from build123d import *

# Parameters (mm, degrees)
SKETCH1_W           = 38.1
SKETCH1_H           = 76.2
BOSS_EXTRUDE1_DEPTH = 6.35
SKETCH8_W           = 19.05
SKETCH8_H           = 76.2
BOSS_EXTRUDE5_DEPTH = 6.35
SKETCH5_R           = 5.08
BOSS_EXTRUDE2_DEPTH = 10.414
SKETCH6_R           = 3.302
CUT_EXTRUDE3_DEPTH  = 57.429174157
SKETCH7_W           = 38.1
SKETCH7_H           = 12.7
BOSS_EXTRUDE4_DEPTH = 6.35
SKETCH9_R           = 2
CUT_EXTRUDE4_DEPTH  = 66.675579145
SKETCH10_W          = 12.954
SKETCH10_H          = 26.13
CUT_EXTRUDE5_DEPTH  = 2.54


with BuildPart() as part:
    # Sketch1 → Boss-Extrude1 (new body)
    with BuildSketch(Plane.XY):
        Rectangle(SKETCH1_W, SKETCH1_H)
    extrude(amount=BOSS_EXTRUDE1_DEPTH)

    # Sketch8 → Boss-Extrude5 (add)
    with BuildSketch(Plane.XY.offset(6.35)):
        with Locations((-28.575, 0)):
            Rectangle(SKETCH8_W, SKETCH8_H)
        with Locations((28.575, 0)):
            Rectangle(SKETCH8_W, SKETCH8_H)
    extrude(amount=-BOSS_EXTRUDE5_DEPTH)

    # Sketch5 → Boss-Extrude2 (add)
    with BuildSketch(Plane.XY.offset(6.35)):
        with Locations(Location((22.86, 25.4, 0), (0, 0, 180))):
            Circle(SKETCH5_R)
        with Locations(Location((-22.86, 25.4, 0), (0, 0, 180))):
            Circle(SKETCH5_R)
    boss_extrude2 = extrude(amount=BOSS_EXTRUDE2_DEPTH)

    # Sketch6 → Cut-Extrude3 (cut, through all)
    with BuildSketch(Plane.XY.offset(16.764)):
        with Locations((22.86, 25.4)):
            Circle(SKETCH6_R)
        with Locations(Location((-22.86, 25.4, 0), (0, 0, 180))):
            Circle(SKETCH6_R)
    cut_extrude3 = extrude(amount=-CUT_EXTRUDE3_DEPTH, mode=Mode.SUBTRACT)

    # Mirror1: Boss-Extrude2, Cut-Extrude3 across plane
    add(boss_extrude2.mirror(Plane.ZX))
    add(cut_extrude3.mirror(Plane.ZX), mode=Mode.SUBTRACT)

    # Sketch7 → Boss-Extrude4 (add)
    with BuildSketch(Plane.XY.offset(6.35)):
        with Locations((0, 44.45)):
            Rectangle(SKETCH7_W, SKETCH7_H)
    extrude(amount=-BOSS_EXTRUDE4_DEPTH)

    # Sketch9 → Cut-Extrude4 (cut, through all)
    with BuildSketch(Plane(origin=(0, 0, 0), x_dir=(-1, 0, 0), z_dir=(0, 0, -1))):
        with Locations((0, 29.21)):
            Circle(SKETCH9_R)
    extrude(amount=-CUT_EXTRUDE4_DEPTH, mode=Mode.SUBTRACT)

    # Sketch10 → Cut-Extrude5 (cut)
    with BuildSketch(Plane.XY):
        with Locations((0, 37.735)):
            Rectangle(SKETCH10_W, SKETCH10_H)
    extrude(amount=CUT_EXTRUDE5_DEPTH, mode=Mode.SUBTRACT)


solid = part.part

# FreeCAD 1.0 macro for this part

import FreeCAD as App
import Part
import Sketcher
from FreeCAD import Vector
Q = App.Units.Quantity

doc = App.newDocument("Part")
body = doc.addObject("PartDesign::Body", "Body")

sketch1 = body.newObject("Sketcher::SketchObject", "Sketch")
sketch1.AttachmentSupport = (doc.getObject("XY_Plane"), [""])
sketch1.MapMode = "FlatFace"
sketch1.addGeometry([
    Part.LineSegment(Vector(-19.05, 38.1, 0), Vector(-19.05, -38.1, 0)),
    Part.LineSegment(Vector(-19.05, -38.1, 0), Vector(19.05, -38.1, 0)),
    Part.LineSegment(Vector(19.05, -38.1, 0), Vector(19.05, 38.1, 0)),
    Part.LineSegment(Vector(19.05, 38.1, 0), Vector(-19.05, 38.1, 0)),
], False)
sketch1.addConstraint([
    Sketcher.Constraint("Coincident", 0, 2, 1, 1),
    Sketcher.Constraint("Coincident", 1, 2, 2, 1),
    Sketcher.Constraint("Coincident", 2, 2, 3, 1),
    Sketcher.Constraint("Coincident", 3, 2, 0, 1),
    Sketcher.Constraint("Vertical", 0),
    Sketcher.Constraint("Horizontal", 1),
    Sketcher.Constraint("Vertical", 2),
    Sketcher.Constraint("Horizontal", 3),
    Sketcher.Constraint("Symmetric", 0, 2, 2, 2, -1, 1),
    Sketcher.Constraint("DistanceY", 0, 2, 0, 1, Q("3 in")),
    Sketcher.Constraint("DistanceX", 1, 1, 1, 2, Q("1.5 in")),
])
pad1 = body.newObject("PartDesign::Pad", "Pad")
pad1.Profile = sketch1
pad1.Length = Q("0.25 in")

sketch2 = body.newObject("Sketcher::SketchObject", "Sketch001")
sketch2.AttachmentSupport = (doc.getObject("XY_Plane"), [""])
sketch2.MapMode = "FlatFace"
sketch2.AttachmentOffset = App.Placement(Vector(0, 0, 0.25 * 25.4), App.Rotation())
sketch2.addGeometry([
    Part.LineSegment(Vector(-38.1, 38.1, 0), Vector(-38.1, -38.1, 0)),
    Part.LineSegment(Vector(-38.1, -38.1, 0), Vector(-19.05, -38.1, 0)),
    Part.LineSegment(Vector(-19.05, -38.1, 0), Vector(-19.05, 38.1, 0)),
    Part.LineSegment(Vector(-19.05, 38.1, 0), Vector(-38.1, 38.1, 0)),
    Part.LineSegment(Vector(19.05, 38.1, 0), Vector(19.05, -38.1, 0)),
    Part.LineSegment(Vector(19.05, -38.1, 0), Vector(38.1, -38.1, 0)),
    Part.LineSegment(Vector(38.1, -38.1, 0), Vector(38.1, 38.1, 0)),
    Part.LineSegment(Vector(38.1, 38.1, 0), Vector(19.05, 38.1, 0)),
], False)
sketch2.addConstraint([
    Sketcher.Constraint("Coincident", 0, 2, 1, 1),
    Sketcher.Constraint("Coincident", 1, 2, 2, 1),
    Sketcher.Constraint("Coincident", 2, 2, 3, 1),
    Sketcher.Constraint("Coincident", 3, 2, 0, 1),
    Sketcher.Constraint("Coincident", 4, 2, 5, 1),
    Sketcher.Constraint("Coincident", 5, 2, 6, 1),
    Sketcher.Constraint("Coincident", 6, 2, 7, 1),
    Sketcher.Constraint("Coincident", 7, 2, 4, 1),
    Sketcher.Constraint("Vertical", 0),
    Sketcher.Constraint("Horizontal", 1),
    Sketcher.Constraint("Vertical", 2),
    Sketcher.Constraint("Horizontal", 3),
    Sketcher.Constraint("Vertical", 4),
    Sketcher.Constraint("Horizontal", 5),
    Sketcher.Constraint("Vertical", 6),
    Sketcher.Constraint("Horizontal", 7),
    Sketcher.Constraint("Symmetric", 2, 2, 4, 2, -1, 1),
    Sketcher.Constraint("Symmetric", 0, 2, 6, 2, -1, 1),
    Sketcher.Constraint("Horizontal", 1, 2, 4, 2),
    Sketcher.Constraint("DistanceY", 0, 2, 0, 1, Q("3 in")),
    Sketcher.Constraint("DistanceX", 0, 2, 5, 2, Q("3 in")),
    Sketcher.Constraint("DistanceX", 1, 1, 1, 2, Q("0.75 in")),
])
pad2 = body.newObject("PartDesign::Pad", "Pad001")
pad2.Profile = sketch2
pad2.Length = Q("0.25 in")
pad2.Reversed = True

sketch3 = body.newObject("Sketcher::SketchObject", "Sketch002")
sketch3.AttachmentSupport = (doc.getObject("XY_Plane"), [""])
sketch3.MapMode = "FlatFace"
sketch3.AttachmentOffset = App.Placement(Vector(0, 0, 0.25 * 25.4), App.Rotation())
sketch3.addGeometry([
    Part.Circle(Vector(22.86, 25.4, 0), Vector(0, 0, 1), 5.08),
    Part.Circle(Vector(-22.86, 25.4, 0), Vector(0, 0, 1), 5.08),
], False)
sketch3.addConstraint([
    Sketcher.Constraint("Equal", 0, 1),
    Sketcher.Constraint("Symmetric", 0, 3, 1, 3, -2),
    Sketcher.Constraint("Diameter", 0, Q("0.4 in")),
    Sketcher.Constraint("DistanceY", -1, 1, 0, 3, Q("1 in")),
    Sketcher.Constraint("DistanceX", -1, 1, 0, 3, Q("0.9 in")),
])
pad3 = body.newObject("PartDesign::Pad", "Pad002")
pad3.Profile = sketch3
pad3.Length = Q("0.41 in")

sketch4 = body.newObject("Sketcher::SketchObject", "Sketch003")
sketch4.AttachmentSupport = (doc.getObject("XY_Plane"), [""])
sketch4.MapMode = "FlatFace"
sketch4.AttachmentOffset = App.Placement(Vector(0, 0, 0.66 * 25.4), App.Rotation())
sketch4.addGeometry([
    Part.Circle(Vector(22.86, 25.4, 0), Vector(0, 0, 1), 3.302),
    Part.Circle(Vector(-22.86, 25.4, 0), Vector(0, 0, 1), 3.302),
], False)
sketch4.addConstraint([
    Sketcher.Constraint("Equal", 0, 1),
    Sketcher.Constraint("Symmetric", 0, 3, 1, 3, -2),
    Sketcher.Constraint("Diameter", 0, Q("0.26 in")),
    Sketcher.Constraint("DistanceY", -1, 1, 0, 3, Q("1 in")),
    Sketcher.Constraint("DistanceX", -1, 1, 0, 3, Q("0.9 in")),
])
pocket1 = body.newObject("PartDesign::Pocket", "Pocket")
pocket1.Profile = sketch4
pocket1.Type = "ThroughAll"
doc.recompute()

mirrored = body.newObject("PartDesign::Mirrored", "Mirrored")
mirrored.Originals = [pad3, pocket1]
mirrored.MirrorPlane = (doc.getObject("XZ_Plane"), [""])
body.Tip = mirrored

sketch5 = body.newObject("Sketcher::SketchObject", "Sketch004")
sketch5.AttachmentSupport = (doc.getObject("XY_Plane"), [""])
sketch5.MapMode = "FlatFace"
sketch5.AttachmentOffset = App.Placement(Vector(0, 0, 0.25 * 25.4), App.Rotation())
sketch5.addGeometry([
    Part.LineSegment(Vector(-19.05, 50.8, 0), Vector(-19.05, 38.1, 0)),
    Part.LineSegment(Vector(-19.05, 38.1, 0), Vector(19.05, 38.1, 0)),
    Part.LineSegment(Vector(19.05, 38.1, 0), Vector(19.05, 50.8, 0)),
    Part.LineSegment(Vector(19.05, 50.8, 0), Vector(-19.05, 50.8, 0)),
], False)
sketch5.addConstraint([
    Sketcher.Constraint("Coincident", 0, 2, 1, 1),
    Sketcher.Constraint("Coincident", 1, 2, 2, 1),
    Sketcher.Constraint("Coincident", 2, 2, 3, 1),
    Sketcher.Constraint("Coincident", 3, 2, 0, 1),
    Sketcher.Constraint("Vertical", 0),
    Sketcher.Constraint("Horizontal", 1),
    Sketcher.Constraint("Vertical", 2),
    Sketcher.Constraint("Horizontal", 3),
    Sketcher.Constraint("DistanceX", 1, 1, 1, 2, Q("1.5 in")),
    Sketcher.Constraint("DistanceY", 0, 2, 0, 1, Q("0.5 in")),
    Sketcher.Constraint("DistanceY", -1, 1, 2, 2, Q("2 in")),
    Sketcher.Constraint("DistanceX", 0, 2, -1, 1, Q("0.75 in")),
])
pad4 = body.newObject("PartDesign::Pad", "Pad003")
pad4.Profile = sketch5
pad4.Length = Q("0.25 in")
pad4.Reversed = True

sketch6 = body.newObject("Sketcher::SketchObject", "Sketch005")
sketch6.AttachmentSupport = (doc.getObject("XY_Plane"), [""])
sketch6.MapMode = "FlatFace"
sketch6.addGeometry(Part.Circle(Vector(0, 29.21, 0), Vector(0, 0, 1), 2), False)
sketch6.addConstraint([
    Sketcher.Constraint("PointOnObject", 0, 3, -2),
    Sketcher.Constraint("Diameter", 0, Q("4 mm")),
    Sketcher.Constraint("DistanceY", -1, 1, 0, 3, Q("1.15 in")),
])
pocket2 = body.newObject("PartDesign::Pocket", "Pocket001")
pocket2.Profile = sketch6
pocket2.Type = "ThroughAll"
pocket2.Reversed = True

sketch7 = body.newObject("Sketcher::SketchObject", "Sketch006")
sketch7.AttachmentSupport = (doc.getObject("XY_Plane"), [""])
sketch7.MapMode = "FlatFace"
sketch7.addGeometry([
    Part.LineSegment(Vector(-6.477, 50.8, 0), Vector(-6.477, 24.67, 0)),
    Part.LineSegment(Vector(-6.477, 24.67, 0), Vector(6.477, 24.67, 0)),
    Part.LineSegment(Vector(6.477, 24.67, 0), Vector(6.477, 50.8, 0)),
    Part.LineSegment(Vector(6.477, 50.8, 0), Vector(-6.477, 50.8, 0)),
], False)
sketch7.addConstraint([
    Sketcher.Constraint("Coincident", 0, 2, 1, 1),
    Sketcher.Constraint("Coincident", 1, 2, 2, 1),
    Sketcher.Constraint("Coincident", 2, 2, 3, 1),
    Sketcher.Constraint("Coincident", 3, 2, 0, 1),
    Sketcher.Constraint("Vertical", 0),
    Sketcher.Constraint("Horizontal", 1),
    Sketcher.Constraint("Vertical", 2),
    Sketcher.Constraint("Horizontal", 3),
    Sketcher.Constraint("DistanceY", -1, 1, 2, 2, Q("2 in")),
    Sketcher.Constraint("DistanceX", 1, 1, 1, 2, Q("0.51 in")),
    Sketcher.Constraint("DistanceX", 0, 2, -1, 1, Q("0.255 in")),
    Sketcher.Constraint("DistanceY", 0, 2, 0, 1, Q("26.13 mm")),
])
pocket3 = body.newObject("PartDesign::Pocket", "Pocket002")
pocket3.Profile = sketch7
pocket3.Length = Q("0.1 in")
pocket3.Reversed = True

doc.recompute()
